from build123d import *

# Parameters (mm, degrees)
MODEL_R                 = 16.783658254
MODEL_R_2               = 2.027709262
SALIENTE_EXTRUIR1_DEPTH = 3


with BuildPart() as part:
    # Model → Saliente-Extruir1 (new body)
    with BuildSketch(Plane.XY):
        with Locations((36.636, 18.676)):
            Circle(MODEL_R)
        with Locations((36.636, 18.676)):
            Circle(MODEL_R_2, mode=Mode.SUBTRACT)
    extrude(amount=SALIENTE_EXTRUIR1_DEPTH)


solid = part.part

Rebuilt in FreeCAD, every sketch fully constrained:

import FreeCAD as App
import Part
import Sketcher

V = App.Vector
Q = App.Units.Quantity

doc = App.newDocument("Part")
params = doc.addObject("Spreadsheet::Sheet", "Params")
for row, (alias, value) in enumerate([
    ("pad1_length", "3 mm"),
], start=1):
    params.set(f"A{row}", alias)
    params.set(f"B{row}", "=" + value)
    params.setAlias(f"B{row}", alias)

body = doc.addObject("PartDesign::Body", "Body")

sketch1 = body.newObject("Sketcher::SketchObject", "Sketch")
sketch1.AttachmentSupport = (doc.getObject("XY_Plane"), [""])
sketch1.MapMode = "FlatFace"
sketch1.addGeometry([
    Part.Circle(V(36.6, 18.7, 0), V(0, 0, 1), 16.8),
    Part.Circle(V(36.6, 18.7, 0), V(0, 0, 1), 2),
], False)
sketch1.addConstraint([
    Sketcher.Constraint("Coincident", 1, 3, 0, 3),
    Sketcher.Constraint("Diameter", 1, Q("4.055419 mm")),
    Sketcher.Constraint("Diameter", 0, Q("33.567317 mm")),
    Sketcher.Constraint("DistanceX", -1, 1, 0, 3, Q("36.636 mm")),
    Sketcher.Constraint("DistanceY", -1, 1, 0, 3, Q("18.676 mm")),
])
pad1 = body.newObject("PartDesign::Pad", "Pad")
pad1.Profile = sketch1
pad1.setExpression("Length", "Params.pad1_length")

doc.recompute()
